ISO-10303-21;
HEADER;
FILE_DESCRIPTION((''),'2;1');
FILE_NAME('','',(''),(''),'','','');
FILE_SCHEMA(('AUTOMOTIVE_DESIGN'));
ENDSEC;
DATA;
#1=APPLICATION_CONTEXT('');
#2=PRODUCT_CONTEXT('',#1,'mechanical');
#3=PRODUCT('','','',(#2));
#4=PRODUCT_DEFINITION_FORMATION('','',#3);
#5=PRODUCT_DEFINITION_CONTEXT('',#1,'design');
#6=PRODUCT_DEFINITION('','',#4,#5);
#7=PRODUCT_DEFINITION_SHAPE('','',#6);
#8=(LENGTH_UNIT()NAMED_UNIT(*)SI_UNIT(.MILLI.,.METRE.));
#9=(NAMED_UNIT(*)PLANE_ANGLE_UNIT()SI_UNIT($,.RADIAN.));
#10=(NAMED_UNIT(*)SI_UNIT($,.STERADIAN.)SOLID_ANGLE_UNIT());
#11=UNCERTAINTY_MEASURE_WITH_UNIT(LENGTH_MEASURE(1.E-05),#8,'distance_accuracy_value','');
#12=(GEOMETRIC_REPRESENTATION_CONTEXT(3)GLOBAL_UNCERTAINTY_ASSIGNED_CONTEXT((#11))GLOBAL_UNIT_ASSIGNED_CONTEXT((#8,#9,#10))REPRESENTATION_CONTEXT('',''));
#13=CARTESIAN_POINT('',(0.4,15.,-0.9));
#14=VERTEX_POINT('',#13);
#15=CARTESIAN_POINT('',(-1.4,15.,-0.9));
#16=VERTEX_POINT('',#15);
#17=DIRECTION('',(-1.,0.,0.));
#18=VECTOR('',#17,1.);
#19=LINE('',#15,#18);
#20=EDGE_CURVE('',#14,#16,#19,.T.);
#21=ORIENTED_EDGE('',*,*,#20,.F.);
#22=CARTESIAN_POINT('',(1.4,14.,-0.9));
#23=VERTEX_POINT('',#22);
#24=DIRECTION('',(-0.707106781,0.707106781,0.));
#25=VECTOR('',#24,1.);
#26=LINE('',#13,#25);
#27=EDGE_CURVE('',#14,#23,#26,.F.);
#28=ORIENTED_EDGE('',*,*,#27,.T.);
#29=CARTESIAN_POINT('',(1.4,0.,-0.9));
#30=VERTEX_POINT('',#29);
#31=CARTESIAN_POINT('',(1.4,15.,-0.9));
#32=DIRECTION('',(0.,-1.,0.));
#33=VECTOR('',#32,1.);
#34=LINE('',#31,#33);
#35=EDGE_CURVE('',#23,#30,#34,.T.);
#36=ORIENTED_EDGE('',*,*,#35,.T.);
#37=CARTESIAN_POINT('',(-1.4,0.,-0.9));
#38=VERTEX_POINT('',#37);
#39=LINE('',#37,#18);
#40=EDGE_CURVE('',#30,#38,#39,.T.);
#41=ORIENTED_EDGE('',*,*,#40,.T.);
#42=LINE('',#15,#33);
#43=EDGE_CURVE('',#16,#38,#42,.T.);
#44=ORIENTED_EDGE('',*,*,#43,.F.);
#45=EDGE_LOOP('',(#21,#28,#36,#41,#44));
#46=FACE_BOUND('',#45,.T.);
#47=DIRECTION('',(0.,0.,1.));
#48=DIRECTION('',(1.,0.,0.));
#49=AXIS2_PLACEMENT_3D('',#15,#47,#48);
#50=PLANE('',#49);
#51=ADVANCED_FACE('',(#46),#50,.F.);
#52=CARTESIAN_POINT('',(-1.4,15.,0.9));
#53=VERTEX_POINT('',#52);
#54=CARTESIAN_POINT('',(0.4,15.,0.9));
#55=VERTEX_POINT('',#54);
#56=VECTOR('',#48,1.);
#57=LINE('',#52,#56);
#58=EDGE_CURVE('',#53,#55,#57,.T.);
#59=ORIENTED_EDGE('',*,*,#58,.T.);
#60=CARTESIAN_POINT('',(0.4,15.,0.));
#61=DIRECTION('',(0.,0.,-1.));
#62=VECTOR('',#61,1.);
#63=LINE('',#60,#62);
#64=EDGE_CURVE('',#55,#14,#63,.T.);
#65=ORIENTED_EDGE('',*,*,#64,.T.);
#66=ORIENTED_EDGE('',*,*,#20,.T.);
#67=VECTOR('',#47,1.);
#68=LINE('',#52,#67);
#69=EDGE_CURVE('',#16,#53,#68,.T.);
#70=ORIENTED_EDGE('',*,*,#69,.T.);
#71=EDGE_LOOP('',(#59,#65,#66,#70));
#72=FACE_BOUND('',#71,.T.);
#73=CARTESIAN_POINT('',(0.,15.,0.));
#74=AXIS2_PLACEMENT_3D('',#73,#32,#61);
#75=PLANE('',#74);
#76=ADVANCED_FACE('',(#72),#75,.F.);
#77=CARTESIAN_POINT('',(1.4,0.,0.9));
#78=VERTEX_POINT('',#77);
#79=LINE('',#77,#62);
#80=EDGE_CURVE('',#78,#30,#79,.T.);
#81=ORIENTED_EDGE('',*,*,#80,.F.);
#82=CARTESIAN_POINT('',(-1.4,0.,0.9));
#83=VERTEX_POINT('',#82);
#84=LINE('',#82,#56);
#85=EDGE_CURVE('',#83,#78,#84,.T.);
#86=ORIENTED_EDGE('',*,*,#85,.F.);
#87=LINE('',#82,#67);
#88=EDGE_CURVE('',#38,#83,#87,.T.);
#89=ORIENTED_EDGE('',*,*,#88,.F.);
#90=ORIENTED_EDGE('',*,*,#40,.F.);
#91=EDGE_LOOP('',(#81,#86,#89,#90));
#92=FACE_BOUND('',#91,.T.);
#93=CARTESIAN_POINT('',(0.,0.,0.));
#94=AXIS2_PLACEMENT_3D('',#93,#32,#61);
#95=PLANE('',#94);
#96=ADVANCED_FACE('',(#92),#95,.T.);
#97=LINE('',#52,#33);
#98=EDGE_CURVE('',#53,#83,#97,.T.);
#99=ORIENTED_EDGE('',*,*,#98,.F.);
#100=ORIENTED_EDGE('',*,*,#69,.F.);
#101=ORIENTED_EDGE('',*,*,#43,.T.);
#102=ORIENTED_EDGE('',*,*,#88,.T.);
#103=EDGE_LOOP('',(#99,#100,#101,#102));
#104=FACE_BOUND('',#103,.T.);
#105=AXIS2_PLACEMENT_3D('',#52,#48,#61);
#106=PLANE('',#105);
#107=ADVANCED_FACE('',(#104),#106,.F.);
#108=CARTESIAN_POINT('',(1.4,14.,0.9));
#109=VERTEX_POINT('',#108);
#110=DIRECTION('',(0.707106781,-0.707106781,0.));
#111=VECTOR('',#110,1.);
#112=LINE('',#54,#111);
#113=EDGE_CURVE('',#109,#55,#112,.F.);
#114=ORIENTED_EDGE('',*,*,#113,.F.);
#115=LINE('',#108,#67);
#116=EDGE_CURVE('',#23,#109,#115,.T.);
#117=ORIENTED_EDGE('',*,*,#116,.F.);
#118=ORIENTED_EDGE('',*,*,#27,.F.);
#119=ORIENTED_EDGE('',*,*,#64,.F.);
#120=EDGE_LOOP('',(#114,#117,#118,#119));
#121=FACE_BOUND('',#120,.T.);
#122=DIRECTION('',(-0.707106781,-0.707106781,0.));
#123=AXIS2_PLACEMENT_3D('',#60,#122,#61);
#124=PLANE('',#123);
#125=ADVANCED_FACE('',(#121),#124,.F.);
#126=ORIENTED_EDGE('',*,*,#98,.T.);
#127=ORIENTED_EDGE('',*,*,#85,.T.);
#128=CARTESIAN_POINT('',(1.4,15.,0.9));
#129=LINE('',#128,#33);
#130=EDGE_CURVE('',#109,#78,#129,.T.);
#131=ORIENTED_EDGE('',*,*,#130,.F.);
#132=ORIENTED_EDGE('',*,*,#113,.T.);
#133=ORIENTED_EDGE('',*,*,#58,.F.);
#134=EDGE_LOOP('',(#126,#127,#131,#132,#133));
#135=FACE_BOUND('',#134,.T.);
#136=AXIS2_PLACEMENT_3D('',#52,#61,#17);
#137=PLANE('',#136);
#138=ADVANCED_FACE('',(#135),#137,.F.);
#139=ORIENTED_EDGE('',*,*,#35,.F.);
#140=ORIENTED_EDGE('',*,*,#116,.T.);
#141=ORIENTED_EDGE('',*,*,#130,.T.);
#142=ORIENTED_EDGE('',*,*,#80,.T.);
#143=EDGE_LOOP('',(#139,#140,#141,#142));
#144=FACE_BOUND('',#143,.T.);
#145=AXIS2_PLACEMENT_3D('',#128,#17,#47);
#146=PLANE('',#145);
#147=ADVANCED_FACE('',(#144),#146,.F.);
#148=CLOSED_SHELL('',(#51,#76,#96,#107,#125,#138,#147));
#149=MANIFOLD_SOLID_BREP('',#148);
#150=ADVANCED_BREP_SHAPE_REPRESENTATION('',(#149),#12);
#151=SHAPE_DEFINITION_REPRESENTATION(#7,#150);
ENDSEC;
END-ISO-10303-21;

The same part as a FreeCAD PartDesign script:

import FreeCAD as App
import Part
import Sketcher
Q = App.Units.Quantity


def edges_at(feature, points):
    """Names of the edges that pass closest to the given points."""
    edges = feature.Shape.Edges
    near = lambda p: min(range(len(edges)), key=lambda i: edges[i].distToShape(Part.Vertex(*p))[0])
    return sorted({f"Edge{near(p) + 1}" for p in points})


def add_polygon(sketch, points):
    """Adds a closed chain of lines whose ends are joined by coincident constraints."""
    first, n = sketch.GeometryCount, len(points)
    for a, b in zip(points, points[1:] + points[:1]):
        sketch.addGeometry(Part.LineSegment(App.Vector(*a, 0), App.Vector(*b, 0)), False)
    for i in range(n):
        sketch.addConstraint(Sketcher.Constraint("Coincident", first + i, 2, first + (i + 1) % n, 1))

doc = App.newDocument("Part")
params = doc.addObject("Spreadsheet::Sheet", "Params")
for row, (alias, value) in enumerate([
    ("sketch1_width", "2.8 mm"),
    ("sketch1_height", "1.8 mm"),
    ("pad1_length", "15 mm"),
    ("chamfer_size", "1 mm"),
], start=1):
    params.set(f"A{row}", alias)
    params.set(f"B{row}", "=" + value)
    params.setAlias(f"B{row}", alias)

body = doc.addObject("PartDesign::Body", "Body")

sketch1 = body.newObject("Sketcher::SketchObject", "Sketch")
sketch1.AttachmentSupport = (doc.getObject("XZ_Plane"), [""])
sketch1.MapMode = "FlatFace"
add_polygon(sketch1, [(-1.4, -0.9), (-1.4, 0.9), (1.4, 0.9), (1.4, -0.9)])
sketch1.addConstraint([
    Sketcher.Constraint("Vertical", 0),
    Sketcher.Constraint("Horizontal", 1),
    Sketcher.Constraint("Vertical", 2),
    Sketcher.Constraint("Horizontal", 3),
    Sketcher.Constraint("Symmetric", 0, 2, 2, 2, -1, 1),
    Sketcher.Constraint("DistanceX", 1, 1, 1, 2, Q("2.8 mm")),
    Sketcher.Constraint("DistanceY", 0, 1, 0, 2, Q("1.8 mm")),
])
sketch1.setExpression("Constraints[9]", "Params.sketch1_width")
sketch1.setExpression("Constraints[10]", "Params.sketch1_height")
pad1 = body.newObject("PartDesign::Pad", "Pad")
pad1.Profile = sketch1
pad1.setExpression("Length", "Params.pad1_length")
pad1.Reversed = True
doc.recompute()

chamfer = body.newObject("PartDesign::Chamfer", "Chamfer")
chamfer.Base = (pad1, edges_at(pad1, [(1.4, 15, 0)]))
chamfer.setExpression("Size", "Params.chamfer_size")

doc.recompute()
